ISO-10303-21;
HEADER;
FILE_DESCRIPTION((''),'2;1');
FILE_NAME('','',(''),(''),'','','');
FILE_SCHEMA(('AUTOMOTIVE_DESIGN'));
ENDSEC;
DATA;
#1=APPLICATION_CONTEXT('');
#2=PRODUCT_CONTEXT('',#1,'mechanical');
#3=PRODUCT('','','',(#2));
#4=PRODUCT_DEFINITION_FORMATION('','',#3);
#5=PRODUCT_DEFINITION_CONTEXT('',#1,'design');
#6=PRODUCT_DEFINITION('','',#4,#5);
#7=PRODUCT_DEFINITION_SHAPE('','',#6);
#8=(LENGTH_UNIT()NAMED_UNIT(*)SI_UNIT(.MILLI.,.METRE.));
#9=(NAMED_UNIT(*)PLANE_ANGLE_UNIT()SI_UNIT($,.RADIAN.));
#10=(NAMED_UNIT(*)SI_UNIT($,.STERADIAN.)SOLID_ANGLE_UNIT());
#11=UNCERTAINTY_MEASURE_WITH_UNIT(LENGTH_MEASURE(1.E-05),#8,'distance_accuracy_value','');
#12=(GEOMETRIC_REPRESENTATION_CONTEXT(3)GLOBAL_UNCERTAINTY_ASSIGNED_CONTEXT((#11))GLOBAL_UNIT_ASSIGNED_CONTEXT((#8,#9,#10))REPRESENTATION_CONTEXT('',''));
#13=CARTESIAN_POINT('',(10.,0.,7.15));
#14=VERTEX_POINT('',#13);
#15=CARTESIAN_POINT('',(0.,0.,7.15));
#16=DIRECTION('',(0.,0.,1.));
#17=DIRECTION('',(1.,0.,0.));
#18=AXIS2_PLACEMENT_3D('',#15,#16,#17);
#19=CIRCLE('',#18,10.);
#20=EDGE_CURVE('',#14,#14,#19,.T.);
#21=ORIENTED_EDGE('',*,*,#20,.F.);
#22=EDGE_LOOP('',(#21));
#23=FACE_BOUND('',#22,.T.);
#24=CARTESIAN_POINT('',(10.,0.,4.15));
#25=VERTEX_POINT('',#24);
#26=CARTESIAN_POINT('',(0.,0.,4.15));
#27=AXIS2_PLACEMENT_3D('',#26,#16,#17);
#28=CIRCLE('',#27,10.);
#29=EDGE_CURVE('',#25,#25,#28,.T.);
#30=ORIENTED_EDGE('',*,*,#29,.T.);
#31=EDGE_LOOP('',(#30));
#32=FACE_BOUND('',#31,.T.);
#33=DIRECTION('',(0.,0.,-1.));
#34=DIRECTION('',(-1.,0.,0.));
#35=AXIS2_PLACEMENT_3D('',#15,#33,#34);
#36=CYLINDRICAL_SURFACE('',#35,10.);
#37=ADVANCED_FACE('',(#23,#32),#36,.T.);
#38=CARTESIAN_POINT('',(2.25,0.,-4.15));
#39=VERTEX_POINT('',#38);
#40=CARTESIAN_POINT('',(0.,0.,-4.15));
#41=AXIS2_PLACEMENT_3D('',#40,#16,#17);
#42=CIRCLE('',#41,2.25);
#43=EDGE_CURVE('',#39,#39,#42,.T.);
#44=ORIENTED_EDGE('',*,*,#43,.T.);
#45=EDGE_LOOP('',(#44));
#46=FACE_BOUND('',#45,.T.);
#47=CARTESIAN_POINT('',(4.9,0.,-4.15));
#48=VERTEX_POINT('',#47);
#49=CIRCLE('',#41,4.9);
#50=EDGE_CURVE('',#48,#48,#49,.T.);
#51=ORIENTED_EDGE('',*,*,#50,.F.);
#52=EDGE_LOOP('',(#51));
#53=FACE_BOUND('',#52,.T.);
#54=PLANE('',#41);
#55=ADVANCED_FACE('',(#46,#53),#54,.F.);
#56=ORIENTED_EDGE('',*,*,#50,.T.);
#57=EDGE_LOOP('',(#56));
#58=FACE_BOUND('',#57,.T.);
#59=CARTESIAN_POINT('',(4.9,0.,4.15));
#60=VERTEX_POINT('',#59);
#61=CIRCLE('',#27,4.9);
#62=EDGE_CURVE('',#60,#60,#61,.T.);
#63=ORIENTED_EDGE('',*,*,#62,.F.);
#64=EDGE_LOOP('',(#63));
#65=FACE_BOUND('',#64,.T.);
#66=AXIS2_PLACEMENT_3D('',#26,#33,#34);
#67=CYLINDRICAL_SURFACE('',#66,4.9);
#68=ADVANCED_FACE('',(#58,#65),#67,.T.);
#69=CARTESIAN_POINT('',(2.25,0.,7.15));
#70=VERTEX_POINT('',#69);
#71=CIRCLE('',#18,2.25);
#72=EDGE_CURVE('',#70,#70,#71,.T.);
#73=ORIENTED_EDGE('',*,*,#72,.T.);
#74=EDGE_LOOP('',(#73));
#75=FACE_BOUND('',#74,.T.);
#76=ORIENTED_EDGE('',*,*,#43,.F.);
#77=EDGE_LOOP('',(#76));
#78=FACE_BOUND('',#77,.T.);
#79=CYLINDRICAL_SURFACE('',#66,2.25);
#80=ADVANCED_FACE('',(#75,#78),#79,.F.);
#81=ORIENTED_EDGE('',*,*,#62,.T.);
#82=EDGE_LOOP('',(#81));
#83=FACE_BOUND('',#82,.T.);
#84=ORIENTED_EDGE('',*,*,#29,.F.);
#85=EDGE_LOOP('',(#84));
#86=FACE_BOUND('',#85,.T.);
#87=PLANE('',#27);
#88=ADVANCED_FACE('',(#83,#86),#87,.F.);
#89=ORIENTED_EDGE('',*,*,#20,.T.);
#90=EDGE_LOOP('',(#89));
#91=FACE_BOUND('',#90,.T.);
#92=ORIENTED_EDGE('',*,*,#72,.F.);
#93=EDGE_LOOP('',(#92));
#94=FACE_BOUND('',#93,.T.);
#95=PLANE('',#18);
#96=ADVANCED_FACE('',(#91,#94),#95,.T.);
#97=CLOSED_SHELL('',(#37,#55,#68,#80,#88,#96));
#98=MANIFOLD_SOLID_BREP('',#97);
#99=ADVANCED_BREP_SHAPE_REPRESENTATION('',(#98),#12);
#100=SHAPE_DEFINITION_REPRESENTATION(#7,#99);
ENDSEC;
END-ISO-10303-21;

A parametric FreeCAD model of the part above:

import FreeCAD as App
import Part
import Sketcher

doc = App.newDocument("Part")
params = doc.addObject("Spreadsheet::Sheet", "Params")
for row, (alias, value) in enumerate([
    ("sketch1_diameter", "9.8 mm"),
    ("sketch1_diameter2", "4.5 mm"),
    ("pad1_length", "8.3 mm"),
    ("sketch2_diameter", "20 mm"),
    ("sketch2_diameter2", "4.5 mm"),
    ("pad2_length", "3 mm"),
], start=1):
    params.set(f"A{row}", alias)
    params.set(f"B{row}", "=" + value)
    params.setAlias(f"B{row}", alias)

body = doc.addObject("PartDesign::Body", "Body")

sketch1 = doc.addObject("Sketcher::SketchObject", "Sketch")
body.addObject(sketch1)
sketch1.AttachmentSupport = (doc.XY_Plane, [""])
sketch1.MapMode = "FlatFace"
sketch1.addGeometry(Part.Circle(App.Vector(0, 0, 0), App.Vector(0, 0, 1), 4.9), False)
sketch1.addGeometry(Part.Circle(App.Vector(0, 0, 0), App.Vector(0, 0, 1), 2.25), False)
sketch1.addConstraint(Sketcher.Constraint("Coincident", 0, 3, -1, 1))
sketch1.addConstraint(Sketcher.Constraint("Coincident", 1, 3, -1, 1))
sketch1.addConstraint(Sketcher.Constraint("Diameter", 0, 9.8))
sketch1.addConstraint(Sketcher.Constraint("Diameter", 1, 4.5))
sketch1.setExpression("Constraints[2]", "Params.sketch1_diameter")
sketch1.setExpression("Constraints[3]", "Params.sketch1_diameter2")
pad1 = doc.addObject("PartDesign::Pad", "Pad")
body.addObject(pad1)
pad1.Profile = sketch1
pad1.setExpression("Length", "Params.pad1_length")
pad1.Midplane = True

sketch2 = doc.addObject("Sketcher::SketchObject", "Sketch001")
body.addObject(sketch2)
sketch2.AttachmentSupport = (doc.XY_Plane, [""])
sketch2.MapMode = "FlatFace"
sketch2.AttachmentOffset = App.Placement(App.Vector(0, 0, 4.15), App.Rotation())
sketch2.addGeometry(Part.Circle(App.Vector(0, 0, 0), App.Vector(0, 0, 1), 10), False)
sketch2.addGeometry(Part.Circle(App.Vector(0, 0, 0), App.Vector(0, 0, 1), 2.25), False)
sketch2.addConstraint(Sketcher.Constraint("Coincident", 0, 3, -1, 1))
sketch2.addConstraint(Sketcher.Constraint("Coincident", 1, 3, -1, 1))
sketch2.addConstraint(Sketcher.Constraint("Diameter", 0, 20.0))
sketch2.addConstraint(Sketcher.Constraint("Diameter", 1, 4.5))
sketch2.setExpression("Constraints[2]", "Params.sketch2_diameter")
sketch2.setExpression("Constraints[3]", "Params.sketch2_diameter2")
pad2 = doc.addObject("PartDesign::Pad", "Pad001")
body.addObject(pad2)
pad2.Profile = sketch2
pad2.setExpression("Length", "Params.pad2_length")

doc.recompute()
